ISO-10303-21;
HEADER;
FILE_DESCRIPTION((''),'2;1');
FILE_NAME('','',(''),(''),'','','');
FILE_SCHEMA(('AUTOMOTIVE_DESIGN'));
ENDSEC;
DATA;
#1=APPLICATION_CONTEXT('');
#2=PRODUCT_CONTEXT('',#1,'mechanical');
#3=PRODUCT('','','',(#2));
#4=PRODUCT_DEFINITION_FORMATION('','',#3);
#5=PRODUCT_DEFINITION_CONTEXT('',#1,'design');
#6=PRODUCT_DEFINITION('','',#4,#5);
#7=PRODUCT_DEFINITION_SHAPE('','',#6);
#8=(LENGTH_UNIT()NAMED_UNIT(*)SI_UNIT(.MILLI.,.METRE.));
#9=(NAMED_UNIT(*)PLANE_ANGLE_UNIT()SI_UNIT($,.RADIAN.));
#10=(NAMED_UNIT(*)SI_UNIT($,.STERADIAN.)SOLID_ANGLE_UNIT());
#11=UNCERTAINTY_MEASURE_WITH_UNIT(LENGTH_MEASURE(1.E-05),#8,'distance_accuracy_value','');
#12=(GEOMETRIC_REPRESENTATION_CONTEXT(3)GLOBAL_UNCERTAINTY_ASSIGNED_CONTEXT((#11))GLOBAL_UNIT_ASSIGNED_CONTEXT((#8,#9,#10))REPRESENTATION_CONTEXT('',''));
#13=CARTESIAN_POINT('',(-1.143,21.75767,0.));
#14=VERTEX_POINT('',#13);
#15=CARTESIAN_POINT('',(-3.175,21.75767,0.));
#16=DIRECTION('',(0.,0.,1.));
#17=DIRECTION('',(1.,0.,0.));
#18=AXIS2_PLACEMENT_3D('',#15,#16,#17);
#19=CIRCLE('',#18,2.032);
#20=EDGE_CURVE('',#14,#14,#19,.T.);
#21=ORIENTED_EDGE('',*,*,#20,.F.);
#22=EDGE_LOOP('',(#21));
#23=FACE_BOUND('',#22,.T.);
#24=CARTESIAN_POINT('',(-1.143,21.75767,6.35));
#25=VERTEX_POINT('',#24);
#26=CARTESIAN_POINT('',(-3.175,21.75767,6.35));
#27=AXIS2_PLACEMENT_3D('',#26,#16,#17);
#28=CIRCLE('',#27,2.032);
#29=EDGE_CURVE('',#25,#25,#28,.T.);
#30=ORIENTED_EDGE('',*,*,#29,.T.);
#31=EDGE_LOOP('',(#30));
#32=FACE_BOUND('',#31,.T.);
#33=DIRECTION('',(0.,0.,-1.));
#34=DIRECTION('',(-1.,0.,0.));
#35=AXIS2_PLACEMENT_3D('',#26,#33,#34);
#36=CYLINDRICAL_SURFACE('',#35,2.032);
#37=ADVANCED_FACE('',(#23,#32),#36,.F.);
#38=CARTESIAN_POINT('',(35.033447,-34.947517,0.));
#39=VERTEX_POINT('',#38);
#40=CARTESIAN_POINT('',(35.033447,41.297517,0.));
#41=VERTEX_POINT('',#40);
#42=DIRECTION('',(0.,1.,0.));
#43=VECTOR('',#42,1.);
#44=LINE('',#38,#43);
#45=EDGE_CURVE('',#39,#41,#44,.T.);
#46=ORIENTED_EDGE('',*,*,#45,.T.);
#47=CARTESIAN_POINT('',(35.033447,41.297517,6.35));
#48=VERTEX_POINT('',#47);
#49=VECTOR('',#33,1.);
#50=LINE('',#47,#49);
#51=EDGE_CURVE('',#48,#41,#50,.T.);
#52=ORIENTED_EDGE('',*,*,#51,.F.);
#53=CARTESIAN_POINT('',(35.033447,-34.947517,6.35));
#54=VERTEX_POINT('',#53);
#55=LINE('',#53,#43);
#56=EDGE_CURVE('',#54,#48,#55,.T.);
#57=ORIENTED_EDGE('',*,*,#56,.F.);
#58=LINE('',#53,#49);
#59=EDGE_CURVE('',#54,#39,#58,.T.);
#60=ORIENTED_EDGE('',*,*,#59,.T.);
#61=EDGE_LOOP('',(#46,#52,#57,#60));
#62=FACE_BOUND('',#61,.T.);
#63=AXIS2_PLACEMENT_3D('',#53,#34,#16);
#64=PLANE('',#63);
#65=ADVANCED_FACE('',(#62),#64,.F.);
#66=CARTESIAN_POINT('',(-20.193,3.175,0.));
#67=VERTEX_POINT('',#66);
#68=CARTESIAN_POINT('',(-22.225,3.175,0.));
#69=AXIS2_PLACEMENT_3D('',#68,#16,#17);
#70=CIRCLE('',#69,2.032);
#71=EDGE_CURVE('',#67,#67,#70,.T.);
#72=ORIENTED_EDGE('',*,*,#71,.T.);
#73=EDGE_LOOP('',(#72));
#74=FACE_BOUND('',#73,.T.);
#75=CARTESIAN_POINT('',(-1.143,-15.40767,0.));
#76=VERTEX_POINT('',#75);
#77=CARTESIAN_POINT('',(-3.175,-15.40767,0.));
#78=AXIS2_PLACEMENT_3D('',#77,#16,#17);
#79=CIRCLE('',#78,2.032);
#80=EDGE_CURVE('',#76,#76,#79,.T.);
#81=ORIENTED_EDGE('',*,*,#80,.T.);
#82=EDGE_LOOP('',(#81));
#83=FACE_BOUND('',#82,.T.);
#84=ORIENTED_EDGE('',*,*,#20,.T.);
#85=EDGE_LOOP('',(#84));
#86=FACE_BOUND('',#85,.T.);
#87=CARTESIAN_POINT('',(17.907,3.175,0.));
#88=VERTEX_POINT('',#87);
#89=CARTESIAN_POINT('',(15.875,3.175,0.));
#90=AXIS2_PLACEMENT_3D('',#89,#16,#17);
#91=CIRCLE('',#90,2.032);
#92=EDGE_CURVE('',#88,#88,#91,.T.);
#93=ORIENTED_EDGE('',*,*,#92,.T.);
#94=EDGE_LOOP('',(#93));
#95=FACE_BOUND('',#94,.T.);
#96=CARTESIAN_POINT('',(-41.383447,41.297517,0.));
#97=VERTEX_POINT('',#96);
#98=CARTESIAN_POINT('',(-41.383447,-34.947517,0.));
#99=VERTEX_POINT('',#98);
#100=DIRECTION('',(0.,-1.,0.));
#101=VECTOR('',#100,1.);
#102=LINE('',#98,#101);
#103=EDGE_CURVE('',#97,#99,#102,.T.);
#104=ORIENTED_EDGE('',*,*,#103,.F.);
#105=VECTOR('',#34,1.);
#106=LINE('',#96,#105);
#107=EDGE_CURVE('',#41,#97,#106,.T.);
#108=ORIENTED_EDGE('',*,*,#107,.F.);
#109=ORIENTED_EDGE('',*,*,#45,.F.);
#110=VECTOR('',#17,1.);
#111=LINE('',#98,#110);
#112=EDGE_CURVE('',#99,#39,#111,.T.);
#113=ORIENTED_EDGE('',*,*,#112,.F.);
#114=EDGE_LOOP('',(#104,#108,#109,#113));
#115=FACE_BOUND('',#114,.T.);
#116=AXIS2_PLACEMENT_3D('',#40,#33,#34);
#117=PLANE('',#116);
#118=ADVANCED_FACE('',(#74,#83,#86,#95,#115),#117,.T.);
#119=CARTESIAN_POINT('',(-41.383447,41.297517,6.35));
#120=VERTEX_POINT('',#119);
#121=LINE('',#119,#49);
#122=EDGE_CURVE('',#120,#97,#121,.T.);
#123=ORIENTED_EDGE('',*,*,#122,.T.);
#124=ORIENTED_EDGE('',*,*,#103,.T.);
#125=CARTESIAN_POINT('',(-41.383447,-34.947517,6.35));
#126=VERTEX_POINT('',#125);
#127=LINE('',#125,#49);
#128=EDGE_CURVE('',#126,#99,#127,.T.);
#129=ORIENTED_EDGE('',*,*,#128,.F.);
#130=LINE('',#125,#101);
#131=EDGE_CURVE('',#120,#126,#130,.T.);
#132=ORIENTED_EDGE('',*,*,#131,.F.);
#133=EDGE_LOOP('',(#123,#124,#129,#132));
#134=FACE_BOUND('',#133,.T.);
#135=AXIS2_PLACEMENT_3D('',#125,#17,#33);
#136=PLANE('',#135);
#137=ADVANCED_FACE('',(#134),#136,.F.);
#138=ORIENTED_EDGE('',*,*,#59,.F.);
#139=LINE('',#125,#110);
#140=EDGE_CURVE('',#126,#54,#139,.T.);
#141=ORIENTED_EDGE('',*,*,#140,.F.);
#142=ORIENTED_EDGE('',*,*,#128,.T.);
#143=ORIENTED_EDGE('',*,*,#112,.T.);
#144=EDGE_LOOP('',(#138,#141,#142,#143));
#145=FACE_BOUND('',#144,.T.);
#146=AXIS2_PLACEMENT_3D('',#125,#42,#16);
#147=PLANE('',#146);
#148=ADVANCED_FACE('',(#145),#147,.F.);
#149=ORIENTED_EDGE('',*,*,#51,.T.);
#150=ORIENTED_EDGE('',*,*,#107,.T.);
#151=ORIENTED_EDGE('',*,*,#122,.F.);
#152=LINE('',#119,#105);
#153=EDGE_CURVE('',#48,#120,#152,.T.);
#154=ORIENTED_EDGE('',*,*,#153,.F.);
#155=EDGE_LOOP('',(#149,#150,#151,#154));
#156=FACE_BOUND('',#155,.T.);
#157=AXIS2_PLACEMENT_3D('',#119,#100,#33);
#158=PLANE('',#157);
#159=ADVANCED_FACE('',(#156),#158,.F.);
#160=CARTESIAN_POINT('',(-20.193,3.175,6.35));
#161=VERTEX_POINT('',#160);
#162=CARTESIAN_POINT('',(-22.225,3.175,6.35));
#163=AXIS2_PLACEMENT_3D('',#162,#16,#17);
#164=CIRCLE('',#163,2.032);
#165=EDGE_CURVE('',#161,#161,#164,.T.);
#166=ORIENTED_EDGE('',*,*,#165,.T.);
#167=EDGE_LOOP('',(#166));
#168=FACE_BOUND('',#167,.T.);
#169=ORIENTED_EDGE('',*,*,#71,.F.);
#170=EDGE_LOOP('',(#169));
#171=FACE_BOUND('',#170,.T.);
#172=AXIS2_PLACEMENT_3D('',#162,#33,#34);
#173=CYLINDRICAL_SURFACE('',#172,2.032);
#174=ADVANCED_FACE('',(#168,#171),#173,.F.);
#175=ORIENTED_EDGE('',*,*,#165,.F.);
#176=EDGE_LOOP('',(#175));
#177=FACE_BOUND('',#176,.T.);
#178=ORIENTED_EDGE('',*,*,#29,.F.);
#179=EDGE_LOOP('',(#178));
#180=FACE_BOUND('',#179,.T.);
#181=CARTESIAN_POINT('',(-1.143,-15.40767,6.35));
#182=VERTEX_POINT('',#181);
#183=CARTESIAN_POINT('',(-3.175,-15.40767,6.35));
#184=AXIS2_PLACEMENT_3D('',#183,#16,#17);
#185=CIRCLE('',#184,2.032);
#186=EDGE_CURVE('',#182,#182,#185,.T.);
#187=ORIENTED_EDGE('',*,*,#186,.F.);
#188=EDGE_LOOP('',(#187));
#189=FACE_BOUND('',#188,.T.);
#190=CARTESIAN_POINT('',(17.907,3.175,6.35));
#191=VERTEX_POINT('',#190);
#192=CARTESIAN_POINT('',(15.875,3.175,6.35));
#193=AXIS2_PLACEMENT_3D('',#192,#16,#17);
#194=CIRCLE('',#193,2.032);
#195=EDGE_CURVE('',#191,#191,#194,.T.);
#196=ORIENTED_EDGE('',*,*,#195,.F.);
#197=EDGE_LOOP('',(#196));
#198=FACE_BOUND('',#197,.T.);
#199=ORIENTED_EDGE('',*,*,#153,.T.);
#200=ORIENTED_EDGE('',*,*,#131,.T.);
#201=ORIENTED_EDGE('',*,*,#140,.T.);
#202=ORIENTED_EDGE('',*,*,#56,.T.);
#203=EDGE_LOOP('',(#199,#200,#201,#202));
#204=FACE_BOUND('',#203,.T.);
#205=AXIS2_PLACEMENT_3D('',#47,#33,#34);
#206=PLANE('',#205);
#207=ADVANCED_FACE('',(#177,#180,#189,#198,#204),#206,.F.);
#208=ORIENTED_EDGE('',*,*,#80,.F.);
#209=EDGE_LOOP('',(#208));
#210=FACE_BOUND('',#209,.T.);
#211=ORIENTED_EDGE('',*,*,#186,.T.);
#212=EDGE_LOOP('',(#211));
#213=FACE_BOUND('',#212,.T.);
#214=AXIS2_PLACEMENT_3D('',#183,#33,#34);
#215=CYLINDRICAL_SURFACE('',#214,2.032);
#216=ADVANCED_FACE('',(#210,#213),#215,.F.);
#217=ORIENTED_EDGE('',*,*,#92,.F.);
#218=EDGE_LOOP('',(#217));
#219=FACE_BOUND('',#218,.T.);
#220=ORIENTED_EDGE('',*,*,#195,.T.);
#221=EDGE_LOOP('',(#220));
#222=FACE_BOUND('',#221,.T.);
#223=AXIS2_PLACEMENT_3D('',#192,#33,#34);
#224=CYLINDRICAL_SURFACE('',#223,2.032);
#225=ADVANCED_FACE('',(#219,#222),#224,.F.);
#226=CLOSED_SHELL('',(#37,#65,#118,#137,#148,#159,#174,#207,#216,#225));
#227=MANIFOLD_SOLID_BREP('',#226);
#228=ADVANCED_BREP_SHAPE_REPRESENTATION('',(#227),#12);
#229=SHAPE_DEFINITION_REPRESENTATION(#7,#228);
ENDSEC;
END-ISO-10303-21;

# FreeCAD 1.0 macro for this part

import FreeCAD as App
import Part
import Sketcher

V = App.Vector
Q = App.Units.Quantity

doc = App.newDocument("Part")
body = doc.addObject("PartDesign::Body", "Body")

# Sketch on XY plane
sketch1 = doc.addObject("Sketcher::SketchObject", "Sketch")
body.addObject(sketch1)
sketch1.AttachmentSupport = (doc.XY_Plane, [""])
sketch1.MapMode = "FlatFace"
sketch1.addGeometry([
    Part.LineSegment(V(-41.4, 41.3, 0), V(-41.4, -34.9, 0)),  # 0
    Part.LineSegment(V(-41.4, -34.9, 0), V(35, -34.9, 0)),  # 1
    Part.LineSegment(V(35, -34.9, 0), V(35, 41.3, 0)),  # 2
    Part.LineSegment(V(35, 41.3, 0), V(-41.4, 41.3, 0)),  # 3
    Part.Circle(V(-3.2, -15.4, 0), V(0, 0, 1), 2),  # 4
    Part.Circle(V(-22.2, 3.2, 0), V(0, 0, 1), 2),  # 5
    Part.Circle(V(15.9, 3.2, 0), V(0, 0, 1), 2),  # 6
    Part.Circle(V(-3.2, 21.8, 0), V(0, 0, 1), 2),  # 7
], False)
sketch1.addConstraint([
    Sketcher.Constraint("Coincident", 0, 2, 1, 1),
    Sketcher.Constraint("Coincident", 1, 2, 2, 1),
    Sketcher.Constraint("Coincident", 2, 2, 3, 1),
    Sketcher.Constraint("Coincident", 3, 2, 0, 1),
    Sketcher.Constraint("Vertical", 0),
    Sketcher.Constraint("Horizontal", 1),
    Sketcher.Constraint("Vertical", 2),
    Sketcher.Constraint("Horizontal", 3),
    Sketcher.Constraint("Equal", 4, 5),
    Sketcher.Constraint("Equal", 5, 6),
    Sketcher.Constraint("Equal", 6, 7),
    Sketcher.Constraint("Horizontal", 5, 3, 6, 3),
    Sketcher.Constraint("Vertical", 4, 3, 7, 3),
    Sketcher.Constraint("Diameter", 4, Q("0.16 in")),
    Sketcher.Constraint("DistanceX", 5, 3, 6, 3, Q("1.5 in")),
    Sketcher.Constraint("DistanceX", 5, 3, 4, 3, Q("0.75 in")),
    Sketcher.Constraint("DistanceX", 4, 3, -1, 1, Q("0.125 in")),
    Sketcher.Constraint("DistanceY", -1, 1, 5, 3, Q("0.125 in")),
    Sketcher.Constraint("DistanceX", 1, 1, 1, 2, Q("76.416893 mm")),
    Sketcher.Constraint("DistanceY", 0, 2, 0, 1, Q("76.245033 mm")),
    Sketcher.Constraint("DistanceY", 4, 3, -1, 1, Q("15.40767 mm")),
    Sketcher.Constraint("DistanceY", -1, 1, 7, 3, Q("21.75767 mm")),
    Sketcher.Constraint("DistanceX", 0, 2, -1, 1, Q("41.383447 mm")),
    Sketcher.Constraint("DistanceY", 0, 2, -1, 1, Q("34.947517 mm")),
])
pad1 = doc.addObject("PartDesign::Pad", "Pad")
body.addObject(pad1)
pad1.Profile = sketch1
pad1.Length = Q("0.25 in")

doc.recompute()
